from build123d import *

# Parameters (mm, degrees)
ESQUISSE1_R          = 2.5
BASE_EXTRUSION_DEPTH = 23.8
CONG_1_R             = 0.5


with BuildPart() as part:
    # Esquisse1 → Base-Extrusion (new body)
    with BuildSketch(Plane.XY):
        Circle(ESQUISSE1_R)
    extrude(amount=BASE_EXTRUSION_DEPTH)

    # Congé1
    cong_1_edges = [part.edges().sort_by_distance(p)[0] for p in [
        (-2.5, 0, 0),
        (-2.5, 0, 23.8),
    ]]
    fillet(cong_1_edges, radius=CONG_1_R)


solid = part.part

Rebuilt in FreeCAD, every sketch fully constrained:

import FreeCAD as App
import Part
import Sketcher

V = App.Vector
Q = App.Units.Quantity


def edges_at(feature, points):
    """Names of the edges that pass closest to the given points."""
    edges = feature.Shape.Edges
    near = lambda p: min(range(len(edges)), key=lambda i: edges[i].distToShape(Part.Vertex(*p))[0])
    return sorted({f"Edge{near(p) + 1}" for p in points})

doc = App.newDocument("Part")
params = doc.addObject("Spreadsheet::Sheet", "Params")
for row, (alias, value) in enumerate([
    ("sketch1_diameter", "5 mm"),
    ("pad1_length", "23.8 mm"),
    ("fillet_radius", "0.5 mm"),
], start=1):
    params.set(f"A{row}", alias)
    params.set(f"B{row}", "=" + value)
    params.setAlias(f"B{row}", alias)

body = doc.addObject("PartDesign::Body", "Body")

sketch1 = body.newObject("Sketcher::SketchObject", "Sketch")
sketch1.AttachmentSupport = (doc.getObject("XY_Plane"), [""])
sketch1.MapMode = "FlatFace"
sketch1.addGeometry(Part.Circle(V(0, 0, 0), V(0, 0, 1), 2.5), False)
sketch1.addConstraint([
    Sketcher.Constraint("Coincident", 0, 3, -1, 1),
    Sketcher.Constraint("Diameter", 0, Q("5 mm")),
])
sketch1.setExpression("Constraints[1]", "Params.sketch1_diameter")
pad1 = body.newObject("PartDesign::Pad", "Pad")
pad1.Profile = sketch1
pad1.setExpression("Length", "Params.pad1_length")
doc.recompute()

fillet = body.newObject("PartDesign::Fillet", "Fillet")
fillet.Base = (pad1, edges_at(pad1, [(-2.5, 0, 0), (-2.5, 0, 23.8)]))
fillet.setExpression("Radius", "Params.fillet_radius")

doc.recompute()
